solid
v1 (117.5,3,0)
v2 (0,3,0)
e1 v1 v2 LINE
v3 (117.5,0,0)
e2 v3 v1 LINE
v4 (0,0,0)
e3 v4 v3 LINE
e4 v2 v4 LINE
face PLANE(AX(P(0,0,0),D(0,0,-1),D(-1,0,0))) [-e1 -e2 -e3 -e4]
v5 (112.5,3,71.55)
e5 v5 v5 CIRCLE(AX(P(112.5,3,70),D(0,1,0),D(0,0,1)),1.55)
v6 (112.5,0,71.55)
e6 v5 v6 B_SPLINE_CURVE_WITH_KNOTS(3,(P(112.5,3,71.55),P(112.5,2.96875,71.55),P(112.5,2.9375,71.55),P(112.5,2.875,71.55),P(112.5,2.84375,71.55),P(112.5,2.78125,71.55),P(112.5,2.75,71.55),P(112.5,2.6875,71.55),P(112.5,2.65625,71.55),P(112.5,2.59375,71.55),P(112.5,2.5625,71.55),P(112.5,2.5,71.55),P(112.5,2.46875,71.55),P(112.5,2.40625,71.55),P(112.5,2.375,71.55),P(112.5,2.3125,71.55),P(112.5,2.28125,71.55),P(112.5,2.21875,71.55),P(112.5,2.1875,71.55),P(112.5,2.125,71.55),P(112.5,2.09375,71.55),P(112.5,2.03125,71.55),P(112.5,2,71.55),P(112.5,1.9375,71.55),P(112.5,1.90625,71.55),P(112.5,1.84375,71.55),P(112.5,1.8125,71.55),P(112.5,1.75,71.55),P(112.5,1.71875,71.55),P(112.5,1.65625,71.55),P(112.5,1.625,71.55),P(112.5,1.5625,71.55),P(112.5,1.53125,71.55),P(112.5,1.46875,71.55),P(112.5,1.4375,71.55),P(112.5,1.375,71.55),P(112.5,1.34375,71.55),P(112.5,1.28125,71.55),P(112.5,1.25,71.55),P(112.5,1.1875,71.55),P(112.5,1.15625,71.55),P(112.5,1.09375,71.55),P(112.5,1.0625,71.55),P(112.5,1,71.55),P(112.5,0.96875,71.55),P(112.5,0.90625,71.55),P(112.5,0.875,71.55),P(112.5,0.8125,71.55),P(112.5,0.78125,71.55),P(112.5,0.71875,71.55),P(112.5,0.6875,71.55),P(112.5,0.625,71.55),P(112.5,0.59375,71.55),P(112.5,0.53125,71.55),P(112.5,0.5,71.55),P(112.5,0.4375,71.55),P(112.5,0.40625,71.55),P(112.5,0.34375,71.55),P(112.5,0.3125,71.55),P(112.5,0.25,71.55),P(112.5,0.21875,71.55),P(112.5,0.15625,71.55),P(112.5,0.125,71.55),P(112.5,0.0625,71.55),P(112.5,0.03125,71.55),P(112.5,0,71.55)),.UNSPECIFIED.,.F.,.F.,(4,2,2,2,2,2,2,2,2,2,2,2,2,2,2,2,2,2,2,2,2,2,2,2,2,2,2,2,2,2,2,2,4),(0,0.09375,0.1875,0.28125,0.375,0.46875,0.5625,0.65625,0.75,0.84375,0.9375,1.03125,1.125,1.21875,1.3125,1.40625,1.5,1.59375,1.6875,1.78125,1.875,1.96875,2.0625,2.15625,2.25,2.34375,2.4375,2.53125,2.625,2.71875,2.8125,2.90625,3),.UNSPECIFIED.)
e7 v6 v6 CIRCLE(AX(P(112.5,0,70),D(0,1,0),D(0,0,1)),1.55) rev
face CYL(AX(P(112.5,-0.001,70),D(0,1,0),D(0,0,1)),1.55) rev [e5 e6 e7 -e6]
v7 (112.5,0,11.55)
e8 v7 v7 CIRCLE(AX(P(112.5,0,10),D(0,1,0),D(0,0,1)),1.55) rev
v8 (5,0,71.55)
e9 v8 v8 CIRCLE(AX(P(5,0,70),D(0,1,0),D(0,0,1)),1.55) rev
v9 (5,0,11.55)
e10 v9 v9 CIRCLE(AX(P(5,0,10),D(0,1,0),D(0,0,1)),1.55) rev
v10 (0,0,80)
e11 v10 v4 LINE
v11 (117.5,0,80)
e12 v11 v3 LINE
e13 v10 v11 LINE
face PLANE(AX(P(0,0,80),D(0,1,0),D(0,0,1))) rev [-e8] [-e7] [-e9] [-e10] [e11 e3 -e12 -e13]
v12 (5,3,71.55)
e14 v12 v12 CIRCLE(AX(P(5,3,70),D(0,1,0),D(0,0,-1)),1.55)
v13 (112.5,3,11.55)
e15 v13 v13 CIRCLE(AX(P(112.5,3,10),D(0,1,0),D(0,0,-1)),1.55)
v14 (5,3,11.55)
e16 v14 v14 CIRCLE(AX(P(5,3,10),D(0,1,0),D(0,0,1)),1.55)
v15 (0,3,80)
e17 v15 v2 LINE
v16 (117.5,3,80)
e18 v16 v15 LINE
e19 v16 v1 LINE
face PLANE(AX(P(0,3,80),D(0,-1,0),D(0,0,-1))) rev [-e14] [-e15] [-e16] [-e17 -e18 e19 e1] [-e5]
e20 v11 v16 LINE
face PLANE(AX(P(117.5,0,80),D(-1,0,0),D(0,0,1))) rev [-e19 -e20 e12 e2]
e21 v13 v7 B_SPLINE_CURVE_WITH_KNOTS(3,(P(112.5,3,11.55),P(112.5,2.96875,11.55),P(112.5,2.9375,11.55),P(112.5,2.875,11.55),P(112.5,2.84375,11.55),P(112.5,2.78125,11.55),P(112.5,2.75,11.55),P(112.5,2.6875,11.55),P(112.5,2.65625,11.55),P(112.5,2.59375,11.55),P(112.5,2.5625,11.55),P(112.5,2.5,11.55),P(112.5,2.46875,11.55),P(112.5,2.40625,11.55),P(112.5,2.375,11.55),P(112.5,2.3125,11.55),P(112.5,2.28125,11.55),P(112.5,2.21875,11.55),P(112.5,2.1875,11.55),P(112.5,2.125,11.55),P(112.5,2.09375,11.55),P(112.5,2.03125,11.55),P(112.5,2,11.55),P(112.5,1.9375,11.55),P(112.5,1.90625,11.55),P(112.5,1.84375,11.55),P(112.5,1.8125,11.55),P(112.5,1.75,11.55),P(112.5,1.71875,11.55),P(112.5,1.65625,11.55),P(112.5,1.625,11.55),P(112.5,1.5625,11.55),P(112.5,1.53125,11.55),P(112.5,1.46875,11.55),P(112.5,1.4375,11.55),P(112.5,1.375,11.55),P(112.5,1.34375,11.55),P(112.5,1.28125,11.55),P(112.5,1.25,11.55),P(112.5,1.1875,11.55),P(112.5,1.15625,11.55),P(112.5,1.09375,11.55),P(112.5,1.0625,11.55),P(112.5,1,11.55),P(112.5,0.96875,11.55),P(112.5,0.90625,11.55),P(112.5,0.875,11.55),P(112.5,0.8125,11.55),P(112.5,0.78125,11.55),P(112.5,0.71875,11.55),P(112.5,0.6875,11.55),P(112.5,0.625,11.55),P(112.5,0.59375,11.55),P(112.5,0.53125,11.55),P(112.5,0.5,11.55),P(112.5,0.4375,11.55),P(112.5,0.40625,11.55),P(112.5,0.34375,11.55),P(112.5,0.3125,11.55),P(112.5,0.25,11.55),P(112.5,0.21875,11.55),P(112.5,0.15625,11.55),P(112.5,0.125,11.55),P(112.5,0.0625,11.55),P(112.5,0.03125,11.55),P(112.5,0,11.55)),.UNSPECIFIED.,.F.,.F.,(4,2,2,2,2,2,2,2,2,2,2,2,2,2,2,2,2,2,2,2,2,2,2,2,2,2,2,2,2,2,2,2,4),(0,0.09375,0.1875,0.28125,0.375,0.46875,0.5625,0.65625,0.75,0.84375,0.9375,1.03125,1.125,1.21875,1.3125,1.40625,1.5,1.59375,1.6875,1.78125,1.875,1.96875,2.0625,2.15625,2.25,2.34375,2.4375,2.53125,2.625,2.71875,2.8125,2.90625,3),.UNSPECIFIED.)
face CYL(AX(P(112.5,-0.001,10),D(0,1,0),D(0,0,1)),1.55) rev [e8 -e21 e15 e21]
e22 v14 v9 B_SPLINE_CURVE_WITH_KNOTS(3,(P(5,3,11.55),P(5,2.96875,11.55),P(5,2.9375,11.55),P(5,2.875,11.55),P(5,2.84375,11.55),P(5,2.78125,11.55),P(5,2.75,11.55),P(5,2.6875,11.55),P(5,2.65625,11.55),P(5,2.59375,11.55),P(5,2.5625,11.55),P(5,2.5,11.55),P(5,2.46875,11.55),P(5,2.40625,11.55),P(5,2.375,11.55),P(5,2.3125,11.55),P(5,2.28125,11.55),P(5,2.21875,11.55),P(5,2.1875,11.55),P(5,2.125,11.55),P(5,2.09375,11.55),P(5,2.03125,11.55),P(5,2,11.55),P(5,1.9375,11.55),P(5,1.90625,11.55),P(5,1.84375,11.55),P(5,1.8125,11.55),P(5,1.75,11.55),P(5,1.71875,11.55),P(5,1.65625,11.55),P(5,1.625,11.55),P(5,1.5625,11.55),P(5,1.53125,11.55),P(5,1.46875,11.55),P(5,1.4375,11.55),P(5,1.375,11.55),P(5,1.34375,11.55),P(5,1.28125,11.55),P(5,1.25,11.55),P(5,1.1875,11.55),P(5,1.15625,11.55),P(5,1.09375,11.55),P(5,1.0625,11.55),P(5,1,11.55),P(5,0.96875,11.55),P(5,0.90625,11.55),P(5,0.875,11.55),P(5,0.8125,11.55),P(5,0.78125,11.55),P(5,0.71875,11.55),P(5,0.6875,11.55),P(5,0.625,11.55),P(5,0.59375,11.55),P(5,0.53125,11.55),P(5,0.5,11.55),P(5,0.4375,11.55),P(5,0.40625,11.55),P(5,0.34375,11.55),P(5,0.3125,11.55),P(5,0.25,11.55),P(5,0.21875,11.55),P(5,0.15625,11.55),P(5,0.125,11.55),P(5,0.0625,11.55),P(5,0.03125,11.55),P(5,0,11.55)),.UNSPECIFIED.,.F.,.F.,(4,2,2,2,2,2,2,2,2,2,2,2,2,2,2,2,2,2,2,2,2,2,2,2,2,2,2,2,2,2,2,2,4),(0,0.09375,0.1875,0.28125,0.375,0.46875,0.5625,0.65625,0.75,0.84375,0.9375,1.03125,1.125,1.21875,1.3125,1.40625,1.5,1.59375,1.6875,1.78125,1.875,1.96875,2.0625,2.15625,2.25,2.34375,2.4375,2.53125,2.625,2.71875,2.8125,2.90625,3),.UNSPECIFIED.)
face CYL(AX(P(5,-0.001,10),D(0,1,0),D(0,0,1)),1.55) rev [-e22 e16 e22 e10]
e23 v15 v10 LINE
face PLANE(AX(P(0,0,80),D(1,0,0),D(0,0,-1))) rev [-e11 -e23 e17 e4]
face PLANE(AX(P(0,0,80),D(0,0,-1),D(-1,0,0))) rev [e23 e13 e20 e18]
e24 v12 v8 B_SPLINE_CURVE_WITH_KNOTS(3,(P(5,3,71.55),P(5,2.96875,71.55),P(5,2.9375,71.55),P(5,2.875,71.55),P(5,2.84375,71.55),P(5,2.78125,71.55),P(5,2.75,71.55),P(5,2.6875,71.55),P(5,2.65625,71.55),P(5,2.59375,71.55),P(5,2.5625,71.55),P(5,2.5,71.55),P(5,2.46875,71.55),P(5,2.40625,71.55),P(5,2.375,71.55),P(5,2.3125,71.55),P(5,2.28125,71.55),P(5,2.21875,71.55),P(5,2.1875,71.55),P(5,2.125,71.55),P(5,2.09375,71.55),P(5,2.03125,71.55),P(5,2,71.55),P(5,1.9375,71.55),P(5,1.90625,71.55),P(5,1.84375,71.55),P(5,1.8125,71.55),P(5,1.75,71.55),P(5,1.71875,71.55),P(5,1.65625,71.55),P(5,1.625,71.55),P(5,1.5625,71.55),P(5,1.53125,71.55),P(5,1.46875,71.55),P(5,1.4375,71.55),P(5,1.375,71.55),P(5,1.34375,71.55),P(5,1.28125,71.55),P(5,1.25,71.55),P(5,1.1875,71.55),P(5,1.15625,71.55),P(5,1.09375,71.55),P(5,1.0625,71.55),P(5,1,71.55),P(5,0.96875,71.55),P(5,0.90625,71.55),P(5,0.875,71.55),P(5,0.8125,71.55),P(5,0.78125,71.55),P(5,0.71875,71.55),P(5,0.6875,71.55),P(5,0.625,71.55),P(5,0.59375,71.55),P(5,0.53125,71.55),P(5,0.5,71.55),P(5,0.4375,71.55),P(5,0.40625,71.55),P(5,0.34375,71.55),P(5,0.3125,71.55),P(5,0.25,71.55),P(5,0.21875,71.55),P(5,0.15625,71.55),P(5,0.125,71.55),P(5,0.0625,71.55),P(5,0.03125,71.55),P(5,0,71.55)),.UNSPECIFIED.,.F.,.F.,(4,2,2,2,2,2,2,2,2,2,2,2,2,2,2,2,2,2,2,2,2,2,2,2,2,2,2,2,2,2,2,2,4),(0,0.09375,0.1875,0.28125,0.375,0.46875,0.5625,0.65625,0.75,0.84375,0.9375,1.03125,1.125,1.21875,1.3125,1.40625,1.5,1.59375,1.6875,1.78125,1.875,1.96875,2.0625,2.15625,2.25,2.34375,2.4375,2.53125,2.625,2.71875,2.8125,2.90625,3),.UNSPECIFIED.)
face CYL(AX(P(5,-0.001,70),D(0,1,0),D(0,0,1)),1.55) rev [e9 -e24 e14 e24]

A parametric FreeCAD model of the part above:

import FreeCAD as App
import Part
import Sketcher

V = App.Vector

doc = App.newDocument("Part")
body = doc.addObject("PartDesign::Body", "Body")

# Sketch on XY plane
sketch1 = body.newObject("Sketcher::SketchObject", "Sketch")
sketch1.AttachmentSupport = (doc.getObject("XY_Plane"), [""])
sketch1.MapMode = "FlatFace"
sketch1.addGeometry([
    Part.LineSegment(V(0, 3, 0), V(0, 0, 0)),
    Part.LineSegment(V(0, 0, 0), V(117.5, 0, 0)),
    Part.LineSegment(V(117.5, 0, 0), V(117.5, 3, 0)),
    Part.LineSegment(V(117.5, 3, 0), V(0, 3, 0)),
], False)
sketch1.addConstraint([
    Sketcher.Constraint("Coincident", 0, 2, 1, 1),
    Sketcher.Constraint("Coincident", 1, 2, 2, 1),
    Sketcher.Constraint("Coincident", 2, 2, 3, 1),
    Sketcher.Constraint("Coincident", 3, 2, 0, 1),
    Sketcher.Constraint("Vertical", 0),
    Sketcher.Constraint("Horizontal", 1),
    Sketcher.Constraint("Vertical", 2),
    Sketcher.Constraint("Horizontal", 3),
    Sketcher.Constraint("Coincident", 0, 2, -1, 1),
    Sketcher.Constraint("DistanceY", 0, 2, 0, 1, 3.0),
    Sketcher.Constraint("DistanceX", 1, 1, 1, 2, 117.5),
])
pad1 = body.newObject("PartDesign::Pad", "Pad")
pad1.Profile = sketch1
pad1.Length = 80

# Sketch on XZ plane
sketch2 = body.newObject("Sketcher::SketchObject", "Sketch001")
sketch2.AttachmentSupport = (doc.getObject("XZ_Plane"), [""])
sketch2.MapMode = "FlatFace"
sketch2.AttachmentOffset = App.Placement(V(0, 0, -3), App.Rotation())
sketch2.addGeometry(Part.Circle(V(5, 10, 0), V(0, 0, 1), 1.55), False)
sketch2.addConstraint([
    Sketcher.Constraint("Diameter", 0, 3.1),
    Sketcher.Constraint("DistanceX", -1, 1, 0, 3, 5.0),
    Sketcher.Constraint("DistanceY", -1, 1, 0, 3, 10.0),
])
pocket1 = body.newObject("PartDesign::Pocket", "Pocket")
pocket1.Profile = sketch2
pocket1.Type = "UpToFirst"
pocket1.Reversed = True

# Sketch on XZ plane
sketch3 = body.newObject("Sketcher::SketchObject", "Sketch002")
sketch3.AttachmentSupport = (doc.getObject("XZ_Plane"), [""])
sketch3.MapMode = "FlatFace"
sketch3.AttachmentOffset = App.Placement(V(0, 0, -3), App.Rotation())
sketch3.addGeometry(Part.Circle(V(5, 70, 0), V(0, 0, 1), 1.55), False)
sketch3.addConstraint([
    Sketcher.Constraint("Diameter", 0, 3.1),
    Sketcher.Constraint("DistanceX", -1, 1, 0, 3, 5.0),
    Sketcher.Constraint("DistanceY", -1, 1, 0, 3, 70.0),
])
pocket2 = body.newObject("PartDesign::Pocket", "Pocket001")
pocket2.Profile = sketch3
pocket2.Type = "UpToFirst"
pocket2.Reversed = True

# Sketch on XZ plane
sketch4 = body.newObject("Sketcher::SketchObject", "Sketch003")
sketch4.AttachmentSupport = (doc.getObject("XZ_Plane"), [""])
sketch4.MapMode = "FlatFace"
sketch4.AttachmentOffset = App.Placement(V(0, 0, -3), App.Rotation())
sketch4.addGeometry(Part.Circle(V(112.5, 70, 0), V(0, 0, 1), 1.55), False)
sketch4.addConstraint([
    Sketcher.Constraint("Diameter", 0, 3.1),
    Sketcher.Constraint("DistanceY", -1, 1, 0, 3, 70.0),
    Sketcher.Constraint("DistanceX", -1, 1, 0, 3, 112.5),
])
pocket3 = body.newObject("PartDesign::Pocket", "Pocket002")
pocket3.Profile = sketch4
pocket3.Type = "UpToFirst"
pocket3.Reversed = True

# Sketch on XZ plane
sketch5 = body.newObject("Sketcher::SketchObject", "Sketch004")
sketch5.AttachmentSupport = (doc.getObject("XZ_Plane"), [""])
sketch5.MapMode = "FlatFace"
sketch5.AttachmentOffset = App.Placement(V(0, 0, -3), App.Rotation())
sketch5.addGeometry(Part.Circle(V(112.5, 10, 0), V(0, 0, 1), 1.55), False)
sketch5.addConstraint([
    Sketcher.Constraint("Diameter", 0, 3.1),
    Sketcher.Constraint("DistanceY", -1, 1, 0, 3, 10.0),
    Sketcher.Constraint("DistanceX", -1, 1, 0, 3, 112.5),
])
pocket4 = body.newObject("PartDesign::Pocket", "Pocket003")
pocket4.Profile = sketch5
pocket4.Type = "UpToFirst"
pocket4.Reversed = True

doc.recompute()
